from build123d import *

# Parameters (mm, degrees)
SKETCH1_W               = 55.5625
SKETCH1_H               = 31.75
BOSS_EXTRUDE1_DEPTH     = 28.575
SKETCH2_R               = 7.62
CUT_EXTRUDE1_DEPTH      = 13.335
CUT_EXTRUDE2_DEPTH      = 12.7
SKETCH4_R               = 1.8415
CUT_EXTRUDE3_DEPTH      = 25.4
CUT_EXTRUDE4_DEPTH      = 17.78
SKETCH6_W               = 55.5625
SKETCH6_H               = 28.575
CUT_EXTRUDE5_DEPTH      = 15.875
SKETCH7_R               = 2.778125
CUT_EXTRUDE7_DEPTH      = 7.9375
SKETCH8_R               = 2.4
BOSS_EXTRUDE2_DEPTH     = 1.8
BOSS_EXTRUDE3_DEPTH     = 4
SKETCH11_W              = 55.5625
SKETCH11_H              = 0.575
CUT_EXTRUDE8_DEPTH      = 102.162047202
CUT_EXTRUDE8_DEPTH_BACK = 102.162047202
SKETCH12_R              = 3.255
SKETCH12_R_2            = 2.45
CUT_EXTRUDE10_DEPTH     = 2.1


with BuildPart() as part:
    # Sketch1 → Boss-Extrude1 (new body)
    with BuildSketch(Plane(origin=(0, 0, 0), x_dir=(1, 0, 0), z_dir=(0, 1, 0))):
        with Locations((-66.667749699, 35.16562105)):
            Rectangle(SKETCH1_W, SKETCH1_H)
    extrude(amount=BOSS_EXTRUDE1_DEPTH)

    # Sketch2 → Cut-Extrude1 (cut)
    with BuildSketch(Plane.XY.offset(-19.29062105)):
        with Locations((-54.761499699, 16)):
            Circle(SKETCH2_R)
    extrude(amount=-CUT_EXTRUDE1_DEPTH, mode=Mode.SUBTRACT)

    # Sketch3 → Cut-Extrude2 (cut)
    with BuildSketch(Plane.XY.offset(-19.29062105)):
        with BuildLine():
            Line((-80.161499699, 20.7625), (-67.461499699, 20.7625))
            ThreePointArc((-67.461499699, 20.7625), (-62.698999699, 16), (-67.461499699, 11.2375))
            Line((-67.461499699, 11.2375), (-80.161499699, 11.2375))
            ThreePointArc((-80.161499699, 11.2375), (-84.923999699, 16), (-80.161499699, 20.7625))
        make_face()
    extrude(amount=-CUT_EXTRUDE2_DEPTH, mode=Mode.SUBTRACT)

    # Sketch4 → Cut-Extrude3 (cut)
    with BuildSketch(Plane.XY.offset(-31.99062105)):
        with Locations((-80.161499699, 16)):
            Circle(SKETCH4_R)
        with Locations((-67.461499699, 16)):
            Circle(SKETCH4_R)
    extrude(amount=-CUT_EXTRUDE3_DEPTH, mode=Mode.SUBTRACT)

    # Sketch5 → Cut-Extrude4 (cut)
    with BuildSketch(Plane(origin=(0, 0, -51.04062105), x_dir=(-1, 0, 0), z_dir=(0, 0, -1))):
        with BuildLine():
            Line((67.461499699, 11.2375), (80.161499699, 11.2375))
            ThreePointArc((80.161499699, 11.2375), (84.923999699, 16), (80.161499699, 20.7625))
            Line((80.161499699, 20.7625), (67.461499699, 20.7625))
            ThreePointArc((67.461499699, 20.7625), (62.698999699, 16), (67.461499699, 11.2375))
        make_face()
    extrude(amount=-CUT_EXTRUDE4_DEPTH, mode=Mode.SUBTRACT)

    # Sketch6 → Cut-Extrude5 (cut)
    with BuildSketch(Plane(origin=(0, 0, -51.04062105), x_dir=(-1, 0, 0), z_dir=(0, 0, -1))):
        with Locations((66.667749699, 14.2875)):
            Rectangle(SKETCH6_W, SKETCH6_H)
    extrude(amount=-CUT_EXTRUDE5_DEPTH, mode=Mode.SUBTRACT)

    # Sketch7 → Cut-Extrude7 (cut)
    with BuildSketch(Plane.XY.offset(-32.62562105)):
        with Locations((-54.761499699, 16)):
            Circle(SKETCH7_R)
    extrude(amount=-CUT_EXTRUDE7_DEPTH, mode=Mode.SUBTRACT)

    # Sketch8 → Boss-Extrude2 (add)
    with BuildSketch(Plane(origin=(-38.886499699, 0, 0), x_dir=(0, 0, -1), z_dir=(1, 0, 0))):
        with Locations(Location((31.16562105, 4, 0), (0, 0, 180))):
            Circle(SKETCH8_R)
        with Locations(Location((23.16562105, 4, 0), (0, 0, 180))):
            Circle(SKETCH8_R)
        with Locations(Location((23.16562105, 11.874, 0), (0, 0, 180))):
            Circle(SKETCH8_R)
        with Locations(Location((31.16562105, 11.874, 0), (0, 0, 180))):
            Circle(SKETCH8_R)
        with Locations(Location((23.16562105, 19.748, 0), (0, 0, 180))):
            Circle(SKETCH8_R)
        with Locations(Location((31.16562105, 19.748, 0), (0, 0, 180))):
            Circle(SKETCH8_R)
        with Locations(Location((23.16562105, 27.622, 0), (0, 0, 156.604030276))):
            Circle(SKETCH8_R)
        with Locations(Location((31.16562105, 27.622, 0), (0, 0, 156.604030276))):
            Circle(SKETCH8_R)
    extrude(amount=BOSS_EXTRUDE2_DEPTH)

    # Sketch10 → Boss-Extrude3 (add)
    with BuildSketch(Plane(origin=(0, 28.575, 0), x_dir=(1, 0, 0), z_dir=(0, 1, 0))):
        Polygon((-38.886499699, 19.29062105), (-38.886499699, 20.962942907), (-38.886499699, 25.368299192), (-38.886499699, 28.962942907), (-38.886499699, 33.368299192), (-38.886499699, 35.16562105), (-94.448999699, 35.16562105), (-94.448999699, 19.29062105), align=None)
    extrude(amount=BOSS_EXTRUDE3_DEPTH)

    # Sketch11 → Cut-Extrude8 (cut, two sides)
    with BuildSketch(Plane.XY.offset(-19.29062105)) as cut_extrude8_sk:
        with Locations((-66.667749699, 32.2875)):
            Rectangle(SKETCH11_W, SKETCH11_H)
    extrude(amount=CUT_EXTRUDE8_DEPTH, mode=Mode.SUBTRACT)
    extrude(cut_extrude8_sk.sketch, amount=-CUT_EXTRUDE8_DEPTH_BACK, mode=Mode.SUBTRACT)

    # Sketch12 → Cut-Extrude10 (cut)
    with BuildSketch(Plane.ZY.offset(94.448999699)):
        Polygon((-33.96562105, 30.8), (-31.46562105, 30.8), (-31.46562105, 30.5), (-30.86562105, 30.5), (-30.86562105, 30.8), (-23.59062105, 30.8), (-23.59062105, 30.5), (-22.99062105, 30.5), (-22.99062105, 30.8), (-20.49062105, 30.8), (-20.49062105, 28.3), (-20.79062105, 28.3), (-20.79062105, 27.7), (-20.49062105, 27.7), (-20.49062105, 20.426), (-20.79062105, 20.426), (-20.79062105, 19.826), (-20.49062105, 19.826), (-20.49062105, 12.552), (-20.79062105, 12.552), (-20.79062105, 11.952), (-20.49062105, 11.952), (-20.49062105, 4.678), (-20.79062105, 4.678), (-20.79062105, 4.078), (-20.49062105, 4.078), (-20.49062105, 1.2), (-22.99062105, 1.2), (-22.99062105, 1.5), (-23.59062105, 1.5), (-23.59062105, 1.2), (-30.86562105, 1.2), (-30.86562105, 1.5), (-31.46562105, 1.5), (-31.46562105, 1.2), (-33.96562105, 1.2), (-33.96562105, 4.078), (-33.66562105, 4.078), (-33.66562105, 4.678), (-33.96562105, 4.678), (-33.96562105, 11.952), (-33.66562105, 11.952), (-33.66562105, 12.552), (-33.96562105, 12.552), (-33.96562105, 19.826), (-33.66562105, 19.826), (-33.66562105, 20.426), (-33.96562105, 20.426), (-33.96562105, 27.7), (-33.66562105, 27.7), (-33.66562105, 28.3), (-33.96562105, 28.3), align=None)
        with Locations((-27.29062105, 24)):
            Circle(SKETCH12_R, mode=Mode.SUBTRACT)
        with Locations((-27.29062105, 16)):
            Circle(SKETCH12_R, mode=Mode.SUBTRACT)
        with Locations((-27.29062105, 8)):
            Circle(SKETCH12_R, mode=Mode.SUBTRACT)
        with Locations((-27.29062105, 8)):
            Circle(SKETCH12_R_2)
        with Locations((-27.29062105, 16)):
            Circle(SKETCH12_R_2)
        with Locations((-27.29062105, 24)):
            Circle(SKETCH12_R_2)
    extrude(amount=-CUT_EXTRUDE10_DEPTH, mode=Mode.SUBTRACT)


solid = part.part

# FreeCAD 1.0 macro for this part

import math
import FreeCAD as App
import Part
import Sketcher

V = App.Vector
Q = App.Units.Quantity


def add_polygon(sketch, points):
    """Adds a closed chain of lines whose ends are joined by coincident constraints."""
    first, n = sketch.GeometryCount, len(points)
    for a, b in zip(points, points[1:] + points[:1]):
        sketch.addGeometry(Part.LineSegment(App.Vector(*a, 0), App.Vector(*b, 0)), False)
    for i in range(n):
        sketch.addConstraint(Sketcher.Constraint("Coincident", first + i, 2, first + (i + 1) % n, 1))

doc = App.newDocument("Part")
body = doc.addObject("PartDesign::Body", "Body")

# Sketch on XZ plane
sketch1 = doc.addObject("Sketcher::SketchObject", "Sketch")
body.addObject(sketch1)
sketch1.AttachmentSupport = (doc.XZ_Plane, [""])
sketch1.MapMode = "FlatFace"
add_polygon(sketch1, [(-94, -51), (-94, -19), (-39, -19), (-39, -51)])  # lines 0-3
sketch1.addConstraint([
    Sketcher.Constraint("Vertical", 0),
    Sketcher.Constraint("Horizontal", 1),
    Sketcher.Constraint("Vertical", 2),
    Sketcher.Constraint("Horizontal", 3),
    Sketcher.Constraint("DistanceY", 0, 1, 0, 2, Q("1.25 in")),
    Sketcher.Constraint("DistanceX", 1, 1, 1, 2, Q("2.1875 in")),
    Sketcher.Constraint("DistanceX", 0, 2, -1, 1, Q("94.449 mm")),
    Sketcher.Constraint("DistanceY", 0, 2, -1, 1, Q("19.290621 mm")),
])
pad1 = doc.addObject("PartDesign::Pad", "Pad")
body.addObject(pad1)
pad1.Profile = sketch1
pad1.Length = Q("1.125 in")
pad1.Reversed = True

# Sketch on XY plane
sketch2 = doc.addObject("Sketcher::SketchObject", "Sketch001")
body.addObject(sketch2)
sketch2.AttachmentSupport = (doc.XY_Plane, [""])
sketch2.MapMode = "FlatFace"
sketch2.AttachmentOffset = App.Placement(V(0, 0, -19.290621), App.Rotation())
sketch2.addGeometry(Part.Circle(V(-55, 16, 0), V(0, 0, 1), 8), False)
sketch2.addConstraint([
    Sketcher.Constraint("Diameter", 0, Q("0.6 in")),
    Sketcher.Constraint("DistanceX", 0, 3, -1, 1, Q("54.7615 mm")),
    Sketcher.Constraint("DistanceY", -1, 1, 0, 3, Q("16 mm")),
])
pocket1 = doc.addObject("PartDesign::Pocket", "Pocket")
body.addObject(pocket1)
pocket1.Profile = sketch2
pocket1.Length = Q("0.525 in")

# Sketch on XY plane
sketch3 = doc.addObject("Sketcher::SketchObject", "Sketch002")
body.addObject(sketch3)
sketch3.AttachmentSupport = (doc.XY_Plane, [""])
sketch3.MapMode = "FlatFace"
sketch3.AttachmentOffset = App.Placement(V(0, 0, -19.290621), App.Rotation())
sketch3.addGeometry([
    Part.LineSegment(V(-67.5, 20.8, 0), V(-80.2, 20.8, 0)),
    Part.ArcOfCircle(Part.Circle(V(-80.2, 16, 0), V(0, 0, 1), 4.8), math.radians(90), math.radians(270)),
    Part.LineSegment(V(-80.2, 11.2, 0), V(-67.5, 11.2, 0)),
    Part.ArcOfCircle(Part.Circle(V(-67.5, 16, 0), V(0, 0, 1), 4.8), math.radians(-90), math.radians(90)),
], False)
sketch3.addConstraint([
    Sketcher.Constraint("Tangent", 0, 2, 1, 1),
    Sketcher.Constraint("Tangent", 1, 2, 2, 1),
    Sketcher.Constraint("Tangent", 2, 2, 3, 1),
    Sketcher.Constraint("Tangent", 3, 2, 0, 1),
    Sketcher.Constraint("Horizontal", 0),
    Sketcher.Constraint("Horizontal", 2),
    Sketcher.Constraint("DistanceX", 0, 2, 0, 1, Q("0.5 in")),
    Sketcher.Constraint("Radius", 1, Q("0.1875 in")),
    Sketcher.Constraint("DistanceX", 1, 3, -1, 1, Q("80.1615 mm")),
    Sketcher.Constraint("DistanceY", -1, 1, 1, 3, Q("16 mm")),
])
pocket2 = doc.addObject("PartDesign::Pocket", "Pocket001")
body.addObject(pocket2)
pocket2.Profile = sketch3
pocket2.Length = Q("0.5 in")

# Sketch on XY plane
sketch4 = doc.addObject("Sketcher::SketchObject", "Sketch003")
body.addObject(sketch4)
sketch4.AttachmentSupport = (doc.XY_Plane, [""])
sketch4.MapMode = "FlatFace"
sketch4.AttachmentOffset = App.Placement(V(0, 0, -31.990621), App.Rotation())
sketch4.addGeometry([
    Part.Circle(V(-80.2, 16, 0), V(0, 0, 1), 1.8),
    Part.Circle(V(-67.5, 16, 0), V(0, 0, 1), 1.8),
], False)
sketch4.addConstraint([
    Sketcher.Constraint("Equal", 0, 1),
    Sketcher.Constraint("Horizontal", 0, 3, 1, 3),
    Sketcher.Constraint("Diameter", 0, Q("0.145 in")),
    Sketcher.Constraint("DistanceX", 0, 3, 1, 3, Q("0.5 in")),
    Sketcher.Constraint("DistanceX", 0, 3, -1, 1, Q("80.1615 mm")),
    Sketcher.Constraint("DistanceY", -1, 1, 0, 3, Q("16 mm")),
])
pocket3 = doc.addObject("PartDesign::Pocket", "Pocket002")
body.addObject(pocket3)
pocket3.Profile = sketch4
pocket3.Length = Q("1 in")

# Sketch on XY plane
sketch5 = doc.addObject("Sketcher::SketchObject", "Sketch004")
body.addObject(sketch5)
sketch5.AttachmentSupport = (doc.XY_Plane, [""])
sketch5.MapMode = "FlatFace"
sketch5.AttachmentOffset = App.Placement(V(0, 0, -51.040621), App.Rotation())
sketch5.addGeometry([
    Part.LineSegment(V(-67.5, 11.2, 0), V(-80.2, 11.2, 0)),
    Part.ArcOfCircle(Part.Circle(V(-80.2, 16, 0), V(0, 0, 1), 4.8), math.radians(90), math.radians(270)),
    Part.LineSegment(V(-80.2, 20.8, 0), V(-67.5, 20.8, 0)),
    Part.ArcOfCircle(Part.Circle(V(-67.5, 16, 0), V(0, 0, 1), 4.8), math.radians(-90), math.radians(90)),
], False)
sketch5.addConstraint([
    Sketcher.Constraint("Tangent", 0, 2, 1, 2),
    Sketcher.Constraint("Tangent", 1, 1, 2, 1),
    Sketcher.Constraint("Tangent", 2, 2, 3, 2),
    Sketcher.Constraint("Tangent", 3, 1, 0, 1),
    Sketcher.Constraint("Horizontal", 0),
    Sketcher.Constraint("Horizontal", 2),
    Sketcher.Constraint("DistanceX", 0, 2, 0, 1, Q("0.5 in")),
    Sketcher.Constraint("Radius", 1, Q("0.1875 in")),
    Sketcher.Constraint("DistanceX", 1, 3, -1, 1, Q("80.1615 mm")),
    Sketcher.Constraint("DistanceY", -1, 1, 1, 3, Q("16 mm")),
])
pocket4 = doc.addObject("PartDesign::Pocket", "Pocket003")
body.addObject(pocket4)
pocket4.Profile = sketch5
pocket4.Length = Q("0.7 in")
pocket4.Reversed = True

# Sketch on XY plane
sketch6 = doc.addObject("Sketcher::SketchObject", "Sketch005")
body.addObject(sketch6)
sketch6.AttachmentSupport = (doc.XY_Plane, [""])
sketch6.MapMode = "FlatFace"
sketch6.AttachmentOffset = App.Placement(V(0, 0, -51.040621), App.Rotation())
add_polygon(sketch6, [(-39, 29), (-39, 0), (-94, 0), (-94, 29)])  # lines 0-3
sketch6.addConstraint([
    Sketcher.Constraint("Vertical", 0),
    Sketcher.Constraint("Horizontal", 1),
    Sketcher.Constraint("Vertical", 2),
    Sketcher.Constraint("Horizontal", 3),
    Sketcher.Constraint("PointOnObject", 0, 2, -1),
    Sketcher.Constraint("DistanceX", 1, 2, 1, 1, Q("2.1875 in")),
    Sketcher.Constraint("DistanceY", 0, 2, 0, 1, Q("1.125 in")),
    Sketcher.Constraint("DistanceX", 0, 2, -1, 1, Q("38.8865 mm")),
])
pocket5 = doc.addObject("PartDesign::Pocket", "Pocket004")
body.addObject(pocket5)
pocket5.Profile = sketch6
pocket5.Length = Q("0.625 in")
pocket5.Reversed = True

# Sketch on XY plane
sketch7 = doc.addObject("Sketcher::SketchObject", "Sketch006")
body.addObject(sketch7)
sketch7.AttachmentSupport = (doc.XY_Plane, [""])
sketch7.MapMode = "FlatFace"
sketch7.AttachmentOffset = App.Placement(V(0, 0, -32.625621), App.Rotation())
sketch7.addGeometry(Part.Circle(V(-54.8, 16, 0), V(0, 0, 1), 2.8), False)
sketch7.addConstraint([
    Sketcher.Constraint("Diameter", 0, Q("0.21875 in")),
    Sketcher.Constraint("DistanceX", 0, 3, -1, 1, Q("54.7615 mm")),
    Sketcher.Constraint("DistanceY", -1, 1, 0, 3, Q("16 mm")),
])
pocket6 = doc.addObject("PartDesign::Pocket", "Pocket005")
body.addObject(pocket6)
pocket6.Profile = sketch7
pocket6.Length = Q("0.3125 in")

# Sketch on YZ plane
sketch8 = doc.addObject("Sketcher::SketchObject", "Sketch007")
body.addObject(sketch8)
sketch8.AttachmentSupport = (doc.YZ_Plane, [""])
sketch8.MapMode = "FlatFace"
sketch8.AttachmentOffset = App.Placement(V(0, 0, -38.8865), App.Rotation())
sketch8.addGeometry([
    Part.Circle(V(4, -31.2, 0), V(0, 0, 1), 2.4),  # 0
    Part.Circle(V(4, -23.2, 0), V(0, 0, 1), 2.4),  # 1
    Part.Circle(V(11.9, -23.2, 0), V(0, 0, 1), 2.4),  # 2
    Part.Circle(V(11.9, -31.2, 0), V(0, 0, 1), 2.4),  # 3
    Part.Circle(V(19.7, -23.2, 0), V(0, 0, 1), 2.4),  # 4
    Part.Circle(V(19.7, -31.2, 0), V(0, 0, 1), 2.4),  # 5
    Part.Circle(V(27.6, -23.2, 0), V(0, 0, 1), 2.4),  # 6
    Part.Circle(V(27.6, -31.2, 0), V(0, 0, 1), 2.4),  # 7
], False)
sketch8.addConstraint([
    Sketcher.Constraint("Equal", 0, 1),
    Sketcher.Constraint("Equal", 1, 2),
    Sketcher.Constraint("Equal", 2, 3),
    Sketcher.Constraint("Equal", 3, 4),
    Sketcher.Constraint("Equal", 4, 5),
    Sketcher.Constraint("Equal", 5, 6),
    Sketcher.Constraint("Equal", 6, 7),
    Sketcher.Constraint("Horizontal", 1, 3, 2, 3),
    Sketcher.Constraint("Horizontal", 0, 3, 3, 3),
    Sketcher.Constraint("Horizontal", 2, 3, 4, 3),
    Sketcher.Constraint("Horizontal", 3, 3, 5, 3),
    Sketcher.Constraint("Horizontal", 4, 3, 6, 3),
    Sketcher.Constraint("Horizontal", 5, 3, 7, 3),
    Sketcher.Constraint("Vertical", 0, 3, 1, 3),
    Sketcher.Constraint("Vertical", 2, 3, 3, 3),
    Sketcher.Constraint("Vertical", 4, 3, 5, 3),
    Sketcher.Constraint("Vertical", 6, 3, 7, 3),
    Sketcher.Constraint("Diameter", 0, Q("4.8 mm")),
    Sketcher.Constraint("DistanceX", 1, 3, 2, 3, Q("0.31 in")),
    Sketcher.Constraint("DistanceX", 2, 3, 4, 3, Q("0.31 in")),
    Sketcher.Constraint("DistanceX", 4, 3, 6, 3, Q("0.31 in")),
    Sketcher.Constraint("DistanceX", -1, 1, 0, 3, Q("4 mm")),
    Sketcher.Constraint("DistanceY", 0, 3, 1, 3, Q("8 mm")),
    Sketcher.Constraint("DistanceY", 0, 3, -1, 1, Q("31.165621 mm")),
])
pad2 = doc.addObject("PartDesign::Pad", "Pad001")
body.addObject(pad2)
pad2.Profile = sketch8
pad2.Length = 1.8

# Sketch on XZ plane
sketch9 = doc.addObject("Sketcher::SketchObject", "Sketch008")
body.addObject(sketch9)
sketch9.AttachmentSupport = (doc.XZ_Plane, [""])
sketch9.MapMode = "FlatFace"
sketch9.AttachmentOffset = App.Placement(V(0, 0, -1.125 * 25.4), App.Rotation())
add_polygon(sketch9, [(-39, -19), (-39, -35), (-94, -35), (-94, -19)])  # lines 0-3
sketch9.addConstraint([
    Sketcher.Constraint("Vertical", 0),
    Sketcher.Constraint("Horizontal", 1),
    Sketcher.Constraint("Vertical", 2),
    Sketcher.Constraint("Horizontal", 3),
    Sketcher.Constraint("DistanceX", 1, 2, 1, 1, Q("2.1875 in")),
    Sketcher.Constraint("DistanceY", 0, 2, 0, 1, Q("0.625 in")),
    Sketcher.Constraint("DistanceX", 0, 2, -1, 1, Q("38.8865 mm")),
    Sketcher.Constraint("DistanceY", 0, 2, -1, 1, Q("35.165621 mm")),
])
pad3 = doc.addObject("PartDesign::Pad", "Pad002")
body.addObject(pad3)
pad3.Profile = sketch9
pad3.Length = 4
pad3.Reversed = True

# Sketch on XY plane
sketch10 = doc.addObject("Sketcher::SketchObject", "Sketch009")
body.addObject(sketch10)
sketch10.AttachmentSupport = (doc.XY_Plane, [""])
sketch10.MapMode = "FlatFace"
sketch10.AttachmentOffset = App.Placement(V(0, 0, -19.290621), App.Rotation())
add_polygon(sketch10, [(-94.4, 32.6), (-94.4, 32), (-38.9, 32), (-38.9, 32.6)])  # lines 0-3
sketch10.addConstraint([
    Sketcher.Constraint("Vertical", 0),
    Sketcher.Constraint("Horizontal", 1),
    Sketcher.Constraint("Vertical", 2),
    Sketcher.Constraint("Horizontal", 3),
    Sketcher.Constraint("DistanceX", 1, 1, 1, 2, Q("2.1875 in")),
    Sketcher.Constraint("DistanceY", 0, 2, 0, 1, Q("0.575 mm")),
    Sketcher.Constraint("DistanceX", 0, 2, -1, 1, Q("94.449 mm")),
    Sketcher.Constraint("DistanceY", -1, 1, 0, 2, Q("32 mm")),
])
pocket7 = doc.addObject("PartDesign::Pocket", "Pocket006")
body.addObject(pocket7)
pocket7.Profile = sketch10
pocket7.Type = "ThroughAll"
pocket7.Midplane = True

# Sketch on YZ plane
sketch11 = doc.addObject("Sketcher::SketchObject", "Sketch010")
body.addObject(sketch11)
sketch11.AttachmentSupport = (doc.YZ_Plane, [""])
sketch11.MapMode = "FlatFace"
sketch11.AttachmentOffset = App.Placement(V(0, 0, -94.449), App.Rotation())
add_polygon(sketch11, [(30.8, -31.47), (30.8, -33.97), (28.3, -33.97), (28.3, -33.67), (27.7, -33.67), (27.7, -33.97), (20.43, -33.97), (20.43, -33.67), (19.83, -33.67), (19.83, -33.97), (12.55, -33.97), (12.55, -33.67), (11.95, -33.67), (11.95, -33.97), (4.68, -33.97), (4.68, -33.67), (4.08, -33.67), (4.08, -33.97), (1.2, -33.97), (1.2, -31.47), (1.5, -31.47), (1.5, -30.87), (1.2, -30.87), (1.2, -23.59), (1.5, -23.59), (1.5, -22.99), (1.2, -22.99), (1.2, -20.49), (4.08, -20.49), (4.08, -20.79), (4.68, -20.79), (4.68, -20.49), (11.95, -20.49), (11.95, -20.79), (12.55, -20.79), (12.55, -20.49), (19.83, -20.49), (19.83, -20.79), (20.43, -20.79), (20.43, -20.49), (27.7, -20.49), (27.7, -20.79), (28.3, -20.79), (28.3, -20.49), (30.8, -20.49), (30.8, -22.99), (30.5, -22.99), (30.5, -23.59), (30.8, -23.59), (30.8, -30.87), (30.5, -30.87), (30.5, -31.47)])  # lines 0-51
sketch11.addGeometry(Part.Circle(V(8, -27.29, 0), V(0, 0, 1), 3.25), False)  # 52
sketch11.addGeometry(Part.Circle(V(16, -27.29, 0), V(0, 0, 1), 3.25), False)  # 53
sketch11.addGeometry(Part.Circle(V(24, -27.29, 0), V(0, 0, 1), 3.25), False)  # 54
sketch11.addGeometry(Part.Circle(V(8, -27.29, 0), V(0, 0, 1), 2.45), False)  # 55
sketch11.addGeometry(Part.Circle(V(16, -27.29, 0), V(0, 0, 1), 2.45), False)  # 56
sketch11.addGeometry(Part.Circle(V(24, -27.29, 0), V(0, 0, 1), 2.45), False)  # 57
sketch11.addConstraint([
    Sketcher.Constraint("Vertical", 0),
    Sketcher.Constraint("Horizontal", 1),
    Sketcher.Constraint("Vertical", 2),
    Sketcher.Constraint("Horizontal", 3),
    Sketcher.Constraint("Vertical", 4),
    Sketcher.Constraint("Horizontal", 5),
    Sketcher.Constraint("Vertical", 6),
    Sketcher.Constraint("Horizontal", 7),
    Sketcher.Constraint("Vertical", 8),
    Sketcher.Constraint("Horizontal", 9),
    Sketcher.Constraint("Vertical", 10),
    Sketcher.Constraint("Horizontal", 11),
    Sketcher.Constraint("Vertical", 12),
    Sketcher.Constraint("Horizontal", 13),
    Sketcher.Constraint("Vertical", 14),
    Sketcher.Constraint("Horizontal", 15),
    Sketcher.Constraint("Vertical", 16),
    Sketcher.Constraint("Horizontal", 17),
    Sketcher.Constraint("Vertical", 18),
    Sketcher.Constraint("Horizontal", 19),
    Sketcher.Constraint("Vertical", 20),
    Sketcher.Constraint("Horizontal", 21),
    Sketcher.Constraint("Vertical", 22),
    Sketcher.Constraint("Horizontal", 23),
    Sketcher.Constraint("Vertical", 24),
    Sketcher.Constraint("Horizontal", 25),
    Sketcher.Constraint("Vertical", 26),
    Sketcher.Constraint("Horizontal", 27),
    Sketcher.Constraint("Vertical", 28),
    Sketcher.Constraint("Horizontal", 29),
    Sketcher.Constraint("Vertical", 30),
    Sketcher.Constraint("Horizontal", 31),
    Sketcher.Constraint("Vertical", 32),
    Sketcher.Constraint("Horizontal", 33),
    Sketcher.Constraint("Vertical", 34),
    Sketcher.Constraint("Horizontal", 35),
    Sketcher.Constraint("Vertical", 36),
    Sketcher.Constraint("Horizontal", 37),
    Sketcher.Constraint("Vertical", 38),
    Sketcher.Constraint("Horizontal", 39),
    Sketcher.Constraint("Vertical", 40),
    Sketcher.Constraint("Horizontal", 41),
    Sketcher.Constraint("Vertical", 42),
    Sketcher.Constraint("Horizontal", 43),
    Sketcher.Constraint("Vertical", 44),
    Sketcher.Constraint("Horizontal", 45),
    Sketcher.Constraint("Vertical", 46),
    Sketcher.Constraint("Horizontal", 47),
    Sketcher.Constraint("Vertical", 48),
    Sketcher.Constraint("Horizontal", 49),
    Sketcher.Constraint("Vertical", 50),
    Sketcher.Constraint("Horizontal", 51),
    Sketcher.Constraint("Coincident", 55, 3, 52, 3),
    Sketcher.Constraint("Coincident", 56, 3, 53, 3),
    Sketcher.Constraint("Coincident", 57, 3, 54, 3),
    Sketcher.Constraint("Equal", 52, 53),
    Sketcher.Constraint("Equal", 53, 54),
    Sketcher.Constraint("Equal", 55, 56),
    Sketcher.Constraint("Equal", 56, 57),
    Sketcher.Constraint("Horizontal", 52, 3, 53, 3),
    Sketcher.Constraint("Horizontal", 53, 3, 54, 3),
    Sketcher.Constraint("Horizontal", 1, 2, 4, 2),
    Sketcher.Constraint("Horizontal", 3, 2, 6, 2),
    Sketcher.Constraint("Horizontal", 5, 2, 8, 2),
    Sketcher.Constraint("Horizontal", 7, 2, 10, 2),
    Sketcher.Constraint("Horizontal", 9, 2, 12, 2),
    Sketcher.Constraint("Horizontal", 11, 2, 14, 2),
    Sketcher.Constraint("Horizontal", 13, 2, 16, 2),
    Sketcher.Constraint("Horizontal", 27, 2, 30, 2),
    Sketcher.Constraint("Horizontal", 29, 2, 32, 2),
    Sketcher.Constraint("Horizontal", 31, 2, 34, 2),
    Sketcher.Constraint("Horizontal", 33, 2, 36, 2),
    Sketcher.Constraint("Horizontal", 35, 2, 38, 2),
    Sketcher.Constraint("Horizontal", 37, 2, 40, 2),
    Sketcher.Constraint("Horizontal", 39, 2, 42, 2),
    Sketcher.Constraint("Horizontal", 25, 2, 44, 2),
    Sketcher.Constraint("Horizontal", 23, 2, 46, 2),
    Sketcher.Constraint("Horizontal", 21, 2, 48, 2),
    Sketcher.Constraint("Horizontal", 19, 2, 50, 2),
    Sketcher.Constraint("Vertical", 18, 2, 21, 2),
    Sketcher.Constraint("Vertical", 20, 2, 23, 2),
    Sketcher.Constraint("Vertical", 22, 2, 25, 2),
    Sketcher.Constraint("Vertical", 16, 2, 27, 2),
    Sketcher.Constraint("Vertical", 14, 2, 29, 2),
    Sketcher.Constraint("Vertical", 12, 2, 31, 2),
    Sketcher.Constraint("Vertical", 10, 2, 33, 2),
    Sketcher.Constraint("Vertical", 8, 2, 35, 2),
    Sketcher.Constraint("Vertical", 6, 2, 37, 2),
    Sketcher.Constraint("Vertical", 4, 2, 39, 2),
    Sketcher.Constraint("Vertical", 2, 2, 41, 2),
    Sketcher.Constraint("Vertical", 0, 2, 43, 2),
    Sketcher.Constraint("Vertical", 44, 2, 47, 2),
    Sketcher.Constraint("Vertical", 46, 2, 49, 2),
    Sketcher.Constraint("Equal", 3, 7),
    Sketcher.Constraint("Equal", 5, 9),
    Sketcher.Constraint("Equal", 7, 11),
    Sketcher.Constraint("Equal", 9, 13),
    Sketcher.Constraint("Equal", 11, 15),
    Sketcher.Constraint("Equal", 25, 45),
    Sketcher.Constraint("Equal", 43, 0),
    Sketcher.Constraint("Equal", 51, 2),
    Sketcher.Constraint("Equal", 41, 20),
    Sketcher.Constraint("Equal", 20, 24),
    Sketcher.Constraint("Equal", 18, 26),
    Sketcher.Constraint("Equal", 16, 28),
    Sketcher.Constraint("Diameter", 52, Q("6.51 mm")),
    Sketcher.Constraint("Diameter", 55, Q("4.9 mm")),
    Sketcher.Constraint("DistanceX", 5, 2, 1, 2, Q("0.31 in")),
    Sketcher.Constraint("DistanceX", 1, 2, 1, 1, Q("2.5 mm")),
    Sketcher.Constraint("DistanceX", 3, 2, 3, 1, Q("0.6 mm")),
    Sketcher.Constraint("DistanceX", 17, 2, 17, 1, Q("2.878 mm")),
    Sketcher.Constraint("DistanceX", 19, 1, 19, 2, Q("0.3 mm")),
    Sketcher.Constraint("DistanceY", 22, 1, 22, 2, Q("7.275 mm")),
    Sketcher.Constraint("DistanceX", -1, 1, 52, 3, Q("8 mm")),
    Sketcher.Constraint("DistanceX", -1, 1, 53, 3, Q("16 mm")),
    Sketcher.Constraint("DistanceX", -1, 1, 54, 3, Q("24 mm")),
    Sketcher.Constraint("DistanceX", -1, 1, 0, 2, Q("30.8 mm")),
    Sketcher.Constraint("DistanceY", 0, 2, 54, 3, Q("6.675 mm")),
    Sketcher.Constraint("DistanceY", 52, 3, -1, 1, Q("27.290621 mm")),
])
pocket8 = doc.addObject("PartDesign::Pocket", "Pocket007")
body.addObject(pocket8)
pocket8.Profile = sketch11
pocket8.Length = 2.1
pocket8.Reversed = True

doc.recompute()
